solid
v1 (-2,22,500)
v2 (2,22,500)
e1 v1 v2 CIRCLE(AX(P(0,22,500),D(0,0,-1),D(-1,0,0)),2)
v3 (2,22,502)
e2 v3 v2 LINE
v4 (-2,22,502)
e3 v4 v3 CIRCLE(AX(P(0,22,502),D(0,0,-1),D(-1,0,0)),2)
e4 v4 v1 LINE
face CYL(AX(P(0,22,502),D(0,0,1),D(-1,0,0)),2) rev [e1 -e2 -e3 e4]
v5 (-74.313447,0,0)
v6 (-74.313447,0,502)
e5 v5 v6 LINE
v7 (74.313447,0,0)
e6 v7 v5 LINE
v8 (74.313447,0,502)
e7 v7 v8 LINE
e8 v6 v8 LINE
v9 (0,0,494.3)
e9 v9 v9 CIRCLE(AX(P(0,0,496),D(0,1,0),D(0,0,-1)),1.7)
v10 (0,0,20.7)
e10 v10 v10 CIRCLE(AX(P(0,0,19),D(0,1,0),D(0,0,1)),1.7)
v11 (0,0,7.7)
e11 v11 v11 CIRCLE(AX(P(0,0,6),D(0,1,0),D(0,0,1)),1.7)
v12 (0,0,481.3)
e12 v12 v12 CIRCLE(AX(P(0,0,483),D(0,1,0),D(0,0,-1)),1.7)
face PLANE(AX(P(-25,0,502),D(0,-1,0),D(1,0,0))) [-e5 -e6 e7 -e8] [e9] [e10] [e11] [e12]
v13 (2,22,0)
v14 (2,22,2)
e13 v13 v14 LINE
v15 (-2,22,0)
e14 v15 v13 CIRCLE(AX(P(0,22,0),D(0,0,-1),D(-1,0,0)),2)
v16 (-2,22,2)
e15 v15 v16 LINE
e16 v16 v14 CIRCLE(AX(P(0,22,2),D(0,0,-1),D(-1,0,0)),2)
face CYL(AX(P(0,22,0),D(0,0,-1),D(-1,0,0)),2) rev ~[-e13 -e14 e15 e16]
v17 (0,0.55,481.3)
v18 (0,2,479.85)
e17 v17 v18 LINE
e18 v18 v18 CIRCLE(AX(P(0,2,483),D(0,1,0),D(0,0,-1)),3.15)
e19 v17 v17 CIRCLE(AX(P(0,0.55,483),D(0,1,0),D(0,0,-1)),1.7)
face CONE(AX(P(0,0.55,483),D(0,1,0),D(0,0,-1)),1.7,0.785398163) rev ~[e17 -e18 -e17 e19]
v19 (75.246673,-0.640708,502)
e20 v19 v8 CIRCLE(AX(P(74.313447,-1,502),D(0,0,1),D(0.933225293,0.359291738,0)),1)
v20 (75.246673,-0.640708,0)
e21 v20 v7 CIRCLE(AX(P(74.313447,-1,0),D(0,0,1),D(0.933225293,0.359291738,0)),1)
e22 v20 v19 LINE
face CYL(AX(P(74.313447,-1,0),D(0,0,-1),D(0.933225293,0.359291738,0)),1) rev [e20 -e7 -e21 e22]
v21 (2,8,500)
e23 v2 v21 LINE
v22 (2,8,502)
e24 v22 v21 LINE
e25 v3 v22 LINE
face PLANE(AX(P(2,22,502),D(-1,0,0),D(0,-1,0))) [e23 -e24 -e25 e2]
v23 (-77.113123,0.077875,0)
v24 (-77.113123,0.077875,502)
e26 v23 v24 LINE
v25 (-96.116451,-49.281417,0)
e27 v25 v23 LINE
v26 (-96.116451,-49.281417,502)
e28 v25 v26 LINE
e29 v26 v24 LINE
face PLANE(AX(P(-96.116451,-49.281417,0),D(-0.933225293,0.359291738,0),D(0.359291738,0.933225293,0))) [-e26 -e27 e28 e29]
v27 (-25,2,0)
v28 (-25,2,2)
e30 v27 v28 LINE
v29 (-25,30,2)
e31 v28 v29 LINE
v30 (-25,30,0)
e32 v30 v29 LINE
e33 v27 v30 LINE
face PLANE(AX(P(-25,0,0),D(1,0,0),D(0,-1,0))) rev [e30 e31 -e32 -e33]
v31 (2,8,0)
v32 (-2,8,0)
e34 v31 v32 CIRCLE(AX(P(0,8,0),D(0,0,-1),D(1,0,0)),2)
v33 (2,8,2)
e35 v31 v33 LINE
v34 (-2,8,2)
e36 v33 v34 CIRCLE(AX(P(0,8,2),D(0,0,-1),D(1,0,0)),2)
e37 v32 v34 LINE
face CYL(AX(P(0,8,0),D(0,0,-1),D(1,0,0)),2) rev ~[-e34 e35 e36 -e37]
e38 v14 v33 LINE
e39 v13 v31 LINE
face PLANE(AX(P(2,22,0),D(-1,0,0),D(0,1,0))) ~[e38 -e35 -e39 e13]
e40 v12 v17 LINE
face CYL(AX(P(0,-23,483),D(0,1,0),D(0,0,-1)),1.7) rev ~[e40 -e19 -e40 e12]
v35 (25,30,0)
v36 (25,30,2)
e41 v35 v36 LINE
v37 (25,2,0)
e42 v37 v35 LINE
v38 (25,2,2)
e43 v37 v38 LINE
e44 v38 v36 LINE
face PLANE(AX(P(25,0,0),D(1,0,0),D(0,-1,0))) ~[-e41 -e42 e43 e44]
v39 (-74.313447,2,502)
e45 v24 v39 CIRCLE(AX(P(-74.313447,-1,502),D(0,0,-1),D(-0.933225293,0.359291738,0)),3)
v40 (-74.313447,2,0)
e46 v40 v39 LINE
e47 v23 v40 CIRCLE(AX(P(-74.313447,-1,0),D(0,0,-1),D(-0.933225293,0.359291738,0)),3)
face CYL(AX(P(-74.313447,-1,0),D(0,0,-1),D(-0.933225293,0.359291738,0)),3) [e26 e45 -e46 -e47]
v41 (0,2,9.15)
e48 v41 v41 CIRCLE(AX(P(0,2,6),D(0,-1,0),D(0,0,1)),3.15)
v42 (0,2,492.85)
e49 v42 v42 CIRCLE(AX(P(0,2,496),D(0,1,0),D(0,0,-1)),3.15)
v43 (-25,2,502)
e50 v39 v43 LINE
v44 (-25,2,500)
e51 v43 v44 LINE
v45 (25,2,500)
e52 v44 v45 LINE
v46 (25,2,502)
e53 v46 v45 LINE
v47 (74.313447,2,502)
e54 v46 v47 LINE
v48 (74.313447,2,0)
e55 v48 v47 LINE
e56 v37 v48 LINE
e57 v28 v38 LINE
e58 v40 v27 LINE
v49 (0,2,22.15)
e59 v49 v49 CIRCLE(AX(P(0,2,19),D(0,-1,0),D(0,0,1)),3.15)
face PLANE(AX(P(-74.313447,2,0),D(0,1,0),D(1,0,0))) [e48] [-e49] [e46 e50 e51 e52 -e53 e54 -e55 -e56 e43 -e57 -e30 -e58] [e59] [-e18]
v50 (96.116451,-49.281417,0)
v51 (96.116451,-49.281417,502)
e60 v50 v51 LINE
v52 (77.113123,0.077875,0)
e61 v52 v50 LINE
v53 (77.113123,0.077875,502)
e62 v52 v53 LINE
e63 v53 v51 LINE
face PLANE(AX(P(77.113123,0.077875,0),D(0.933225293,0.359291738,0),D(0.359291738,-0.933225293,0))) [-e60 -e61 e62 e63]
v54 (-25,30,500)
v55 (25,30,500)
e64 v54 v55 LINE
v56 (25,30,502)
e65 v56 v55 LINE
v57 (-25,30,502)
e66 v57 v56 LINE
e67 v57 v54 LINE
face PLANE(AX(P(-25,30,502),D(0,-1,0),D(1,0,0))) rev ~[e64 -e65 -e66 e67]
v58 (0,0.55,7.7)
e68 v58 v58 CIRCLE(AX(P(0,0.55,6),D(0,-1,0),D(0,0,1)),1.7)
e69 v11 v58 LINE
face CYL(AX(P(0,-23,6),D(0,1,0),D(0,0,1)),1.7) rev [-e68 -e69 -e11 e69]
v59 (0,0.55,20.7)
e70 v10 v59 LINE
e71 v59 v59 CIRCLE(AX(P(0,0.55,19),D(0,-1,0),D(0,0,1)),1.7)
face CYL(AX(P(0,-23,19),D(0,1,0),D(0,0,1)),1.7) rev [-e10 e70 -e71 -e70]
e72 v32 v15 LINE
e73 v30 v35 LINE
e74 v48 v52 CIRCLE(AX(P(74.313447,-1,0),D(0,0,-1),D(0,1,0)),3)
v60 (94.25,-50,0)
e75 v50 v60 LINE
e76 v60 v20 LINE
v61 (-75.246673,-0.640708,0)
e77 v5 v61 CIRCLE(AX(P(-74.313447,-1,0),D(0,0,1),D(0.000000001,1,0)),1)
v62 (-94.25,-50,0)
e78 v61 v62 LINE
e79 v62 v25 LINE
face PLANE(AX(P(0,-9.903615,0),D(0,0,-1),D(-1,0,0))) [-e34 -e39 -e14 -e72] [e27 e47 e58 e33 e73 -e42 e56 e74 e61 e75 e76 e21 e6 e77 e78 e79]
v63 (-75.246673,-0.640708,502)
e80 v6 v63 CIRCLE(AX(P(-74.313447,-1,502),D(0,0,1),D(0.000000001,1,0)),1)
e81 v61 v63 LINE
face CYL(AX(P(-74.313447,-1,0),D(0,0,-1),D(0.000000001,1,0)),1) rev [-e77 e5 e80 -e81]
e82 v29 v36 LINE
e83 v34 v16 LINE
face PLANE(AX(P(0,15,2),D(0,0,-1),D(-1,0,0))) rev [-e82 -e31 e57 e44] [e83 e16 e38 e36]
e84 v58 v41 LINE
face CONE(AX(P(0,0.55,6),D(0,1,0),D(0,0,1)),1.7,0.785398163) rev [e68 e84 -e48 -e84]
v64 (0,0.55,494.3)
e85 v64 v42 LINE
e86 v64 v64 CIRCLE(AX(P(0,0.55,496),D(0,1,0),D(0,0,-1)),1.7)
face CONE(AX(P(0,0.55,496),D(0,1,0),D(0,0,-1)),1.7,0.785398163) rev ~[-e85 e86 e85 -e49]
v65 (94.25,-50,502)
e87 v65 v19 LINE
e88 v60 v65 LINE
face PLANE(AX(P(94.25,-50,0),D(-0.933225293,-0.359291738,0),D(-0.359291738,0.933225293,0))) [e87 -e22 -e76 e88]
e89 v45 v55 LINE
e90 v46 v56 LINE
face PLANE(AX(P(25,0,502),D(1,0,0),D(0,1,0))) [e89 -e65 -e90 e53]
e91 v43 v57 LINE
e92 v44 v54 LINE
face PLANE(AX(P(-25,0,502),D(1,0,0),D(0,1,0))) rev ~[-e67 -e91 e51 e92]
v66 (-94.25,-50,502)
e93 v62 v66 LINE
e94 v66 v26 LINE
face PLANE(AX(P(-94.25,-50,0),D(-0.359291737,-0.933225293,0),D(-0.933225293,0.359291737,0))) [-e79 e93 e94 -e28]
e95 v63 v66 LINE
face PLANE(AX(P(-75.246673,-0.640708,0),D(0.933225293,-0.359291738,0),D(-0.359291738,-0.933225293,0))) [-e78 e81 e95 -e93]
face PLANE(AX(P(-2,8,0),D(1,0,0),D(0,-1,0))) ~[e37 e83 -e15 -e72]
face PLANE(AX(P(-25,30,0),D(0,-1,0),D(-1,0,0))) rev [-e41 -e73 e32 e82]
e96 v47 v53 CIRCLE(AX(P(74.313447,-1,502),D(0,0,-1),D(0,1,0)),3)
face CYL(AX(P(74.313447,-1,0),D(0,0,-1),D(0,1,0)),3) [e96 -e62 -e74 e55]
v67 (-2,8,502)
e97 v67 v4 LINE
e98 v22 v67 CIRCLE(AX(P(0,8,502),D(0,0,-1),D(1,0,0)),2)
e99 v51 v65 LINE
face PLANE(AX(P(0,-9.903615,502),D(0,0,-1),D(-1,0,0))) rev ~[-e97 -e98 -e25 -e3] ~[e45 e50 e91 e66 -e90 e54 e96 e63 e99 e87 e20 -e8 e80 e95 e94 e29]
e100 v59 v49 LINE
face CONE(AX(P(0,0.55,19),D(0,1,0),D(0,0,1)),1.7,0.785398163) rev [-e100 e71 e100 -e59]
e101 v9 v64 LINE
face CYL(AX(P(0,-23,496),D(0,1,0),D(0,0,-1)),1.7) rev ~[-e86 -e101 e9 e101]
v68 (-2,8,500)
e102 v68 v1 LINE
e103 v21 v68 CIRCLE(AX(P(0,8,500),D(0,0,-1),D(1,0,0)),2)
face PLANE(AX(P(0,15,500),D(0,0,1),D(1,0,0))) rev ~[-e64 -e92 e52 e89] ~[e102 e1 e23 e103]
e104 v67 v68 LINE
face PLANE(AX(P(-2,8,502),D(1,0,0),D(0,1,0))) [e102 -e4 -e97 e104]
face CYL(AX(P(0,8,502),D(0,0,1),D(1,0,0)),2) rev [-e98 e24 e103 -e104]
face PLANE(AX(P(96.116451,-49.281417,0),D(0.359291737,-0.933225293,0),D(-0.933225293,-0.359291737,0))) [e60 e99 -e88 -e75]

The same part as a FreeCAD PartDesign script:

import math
import FreeCAD as App
import Part
import Sketcher
from FreeCAD import Vector
Q = App.Units.Quantity

doc = App.newDocument("Part")
body = doc.addObject("PartDesign::Body", "Body")

# Sketch on XY plane
sketch1 = body.newObject("Sketcher::SketchObject", "Sketch")
sketch1.AttachmentSupport = (doc.getObject("XY_Plane"), [""])
sketch1.MapMode = "FlatFace"
sketch1.addGeometry(Part.LineSegment(Vector(75.2, -0.6, 0), Vector(94.2, -50, 0)), False)
sketch1.addGeometry(Part.LineSegment(Vector(94.2, -50, 0), Vector(96.1, -49.3, 0)), False)
sketch1.addGeometry(Part.LineSegment(Vector(96.1, -49.3, 0), Vector(77.1, 0.1, 0)), False)
sketch1.addGeometry(Part.ArcOfCircle(Part.Circle(Vector(74.3, -1, 0), Vector(0, 0, 1), 3), math.radians(21), math.radians(90)), False)
sketch1.addGeometry(Part.LineSegment(Vector(74.3, 2, 0), Vector(-74.3, 2, 0)), False)
sketch1.addGeometry(Part.ArcOfCircle(Part.Circle(Vector(-74.3, -1, 0), Vector(0, 0, 1), 3), math.radians(90), math.radians(159)), False)
sketch1.addGeometry(Part.LineSegment(Vector(-77.1, 0.1, 0), Vector(-96.1, -49.3, 0)), False)
sketch1.addGeometry(Part.LineSegment(Vector(-96.1, -49.3, 0), Vector(-94.2, -50, 0)), False)
sketch1.addGeometry(Part.LineSegment(Vector(-94.2, -50, 0), Vector(-75.2, -0.6, 0)), False)
sketch1.addGeometry(Part.ArcOfCircle(Part.Circle(Vector(-74.3, -1, 0), Vector(0, 0, 1), 1), math.radians(90), math.radians(159)), False)
sketch1.addGeometry(Part.LineSegment(Vector(-74.3, 0, 0), Vector(74.3, 0, 0)), False)
sketch1.addGeometry(Part.ArcOfCircle(Part.Circle(Vector(74.3, -1, 0), Vector(0, 0, 1), 1), math.radians(21), math.radians(90)), False)
sketch1.addConstraint(Sketcher.Constraint("Coincident", 0, 2, 1, 1))
sketch1.addConstraint(Sketcher.Constraint("Coincident", 1, 2, 2, 1))
sketch1.addConstraint(Sketcher.Constraint("Tangent", 2, 2, 3, 1))
sketch1.addConstraint(Sketcher.Constraint("Tangent", 3, 2, 4, 1))
sketch1.addConstraint(Sketcher.Constraint("Tangent", 4, 2, 5, 1))
sketch1.addConstraint(Sketcher.Constraint("Tangent", 5, 2, 6, 1))
sketch1.addConstraint(Sketcher.Constraint("Coincident", 6, 2, 7, 1))
sketch1.addConstraint(Sketcher.Constraint("Coincident", 7, 2, 8, 1))
sketch1.addConstraint(Sketcher.Constraint("Tangent", 8, 2, 9, 2))
sketch1.addConstraint(Sketcher.Constraint("Tangent", 9, 1, 10, 1))
sketch1.addConstraint(Sketcher.Constraint("Tangent", 10, 2, 11, 2))
sketch1.addConstraint(Sketcher.Constraint("Tangent", 11, 1, 0, 1))
sketch1.addConstraint(Sketcher.Constraint("Horizontal", 4))
sketch1.addConstraint(Sketcher.Constraint("Horizontal", 10))
sketch1.addConstraint(Sketcher.Constraint("Coincident", 9, 3, 5, 3))
sketch1.addConstraint(Sketcher.Constraint("Coincident", 11, 3, 3, 3))
sketch1.addConstraint(Sketcher.Constraint("Equal", 3, 5))
sketch1.addConstraint(Sketcher.Constraint("Symmetric", 9, 1, 10, 2, -1, 1))
sketch1.addConstraint(Sketcher.Constraint("Symmetric", 1, 2, 6, 2, -2))
sketch1.addConstraint(Sketcher.Constraint("Symmetric", 0, 2, 7, 2, -2))
sketch1.addConstraint(Sketcher.Constraint("Perpendicular", 0, 1))
sketch1.addConstraint(Sketcher.Constraint("Perpendicular", 1, 2))
sketch1.addConstraint(Sketcher.Constraint("Radius", 3, Q("3 mm")))
sketch1.addConstraint(Sketcher.Constraint("Radius", 9, Q("1 mm")))
sketch1.addConstraint(Sketcher.Constraint("DistanceY", 0, 2, -1, 1, Q("50 mm")))
sketch1.addConstraint(Sketcher.Constraint("DistanceX", -1, 1, 0, 2, Q("94.25 mm")))
sketch1.addConstraint(Sketcher.Constraint("DistanceX", 4, 2, 4, 1, Q("148.626895 mm")))
pad1 = body.newObject("PartDesign::Pad", "Pad")
pad1.Profile = sketch1
pad1.Length = 502

# Sketch on XY plane
sketch2 = body.newObject("Sketcher::SketchObject", "Sketch001")
sketch2.AttachmentSupport = (doc.getObject("XY_Plane"), [""])
sketch2.MapMode = "FlatFace"
sketch2.AttachmentOffset = App.Placement(Vector(0, 0, 502), App.Rotation())
sketch2.addGeometry(Part.LineSegment(Vector(-25, 30, 0), Vector(-25, 0, 0)), False)
sketch2.addGeometry(Part.LineSegment(Vector(-25, 0, 0), Vector(25, 0, 0)), False)
sketch2.addGeometry(Part.LineSegment(Vector(25, 0, 0), Vector(25, 30, 0)), False)
sketch2.addGeometry(Part.LineSegment(Vector(25, 30, 0), Vector(-25, 30, 0)), False)
sketch2.addGeometry(Part.ArcOfCircle(Part.Circle(Vector(0, 22, 0), Vector(0, 0, 1), 2), math.radians(0), math.radians(180)), False)
sketch2.addGeometry(Part.LineSegment(Vector(2, 22, 0), Vector(2, 8, 0)), False)
sketch2.addGeometry(Part.ArcOfCircle(Part.Circle(Vector(0, 8, 0), Vector(0, 0, 1), 2), math.radians(180), math.radians(360)), False)
sketch2.addGeometry(Part.LineSegment(Vector(-2, 8, 0), Vector(-2, 22, 0)), False)
sketch2.addConstraint(Sketcher.Constraint("Coincident", 0, 2, 1, 1))
sketch2.addConstraint(Sketcher.Constraint("Coincident", 1, 2, 2, 1))
sketch2.addConstraint(Sketcher.Constraint("Coincident", 2, 2, 3, 1))
sketch2.addConstraint(Sketcher.Constraint("Coincident", 3, 2, 0, 1))
sketch2.addConstraint(Sketcher.Constraint("Tangent", 4, 1, 5, 1))
sketch2.addConstraint(Sketcher.Constraint("Tangent", 5, 2, 6, 2))
sketch2.addConstraint(Sketcher.Constraint("Tangent", 6, 1, 7, 1))
sketch2.addConstraint(Sketcher.Constraint("Tangent", 7, 2, 4, 2))
sketch2.addConstraint(Sketcher.Constraint("Vertical", 0))
sketch2.addConstraint(Sketcher.Constraint("Horizontal", 1))
sketch2.addConstraint(Sketcher.Constraint("Vertical", 2))
sketch2.addConstraint(Sketcher.Constraint("Horizontal", 3))
sketch2.addConstraint(Sketcher.Constraint("Vertical", 5))
sketch2.addConstraint(Sketcher.Constraint("Vertical", 7))
sketch2.addConstraint(Sketcher.Constraint("Symmetric", 0, 2, 1, 2, -1, 1))
sketch2.addConstraint(Sketcher.Constraint("PointOnObject", 4, 3, -2))
sketch2.addConstraint(Sketcher.Constraint("Radius", 4, Q("2 mm")))
sketch2.addConstraint(Sketcher.Constraint("DistanceX", 1, 1, 1, 2, Q("50 mm")))
sketch2.addConstraint(Sketcher.Constraint("DistanceY", 0, 2, 0, 1, Q("30 mm")))
sketch2.addConstraint(Sketcher.Constraint("DistanceY", 5, 2, 5, 1, Q("14 mm")))
sketch2.addConstraint(Sketcher.Constraint("DistanceY", -1, 1, 4, 3, Q("22 mm")))
pad2 = body.newObject("PartDesign::Pad", "Pad001")
pad2.Profile = sketch2
pad2.Length = 2
pad2.Reversed = True
body2 = doc.addObject("PartDesign::Body", "Body001")
doc.recompute()

body2.BaseFeature = body
doc.recompute()

mirroring = doc.addObject("Part::Mirroring", "Mirroring")
mirroring.Source = body
mirroring.Base = Vector(0, 0, 251)
mirroring.Normal = Vector(0, 0, 1)
body3 = doc.addObject("PartDesign::Body", "Body002")
body3.BaseFeature = mirroring
boolean = body2.newObject("PartDesign::Boolean", "Boolean")
boolean.Type = "Fuse"
boolean.addObjects([body3])
doc.recompute()

# Sketch on YZ plane
sketch3 = body2.newObject("Sketcher::SketchObject", "Sketch002")
sketch3.AttachmentSupport = (doc.getObject("YZ_Plane001"), [""])
sketch3.MapMode = "FlatFace"
sketch3.addGeometry(Part.LineSegment(Vector(-24, 19, 0), Vector(2, 19, 0)), False)
sketch3.addGeometry(Part.LineSegment(Vector(2, 19, 0), Vector(2, 22.1, 0)), False)
sketch3.addGeometry(Part.LineSegment(Vector(2, 22.1, 0), Vector(0.6, 20.7, 0)), False)
sketch3.addGeometry(Part.LineSegment(Vector(0.6, 20.7, 0), Vector(-23, 20.7, 0)), False)
sketch3.addGeometry(Part.LineSegment(Vector(-23, 20.7, 0), Vector(-24, 19, 0)), False)
sketch3.addGeometry(Part.LineSegment(Vector(2, 19, 0), Vector(-24, 19, 0)), True)  # axis
sketch3.addConstraint(Sketcher.Constraint("Coincident", 0, 2, 1, 1))
sketch3.addConstraint(Sketcher.Constraint("Coincident", 1, 2, 2, 1))
sketch3.addConstraint(Sketcher.Constraint("Coincident", 2, 2, 3, 1))
sketch3.addConstraint(Sketcher.Constraint("Coincident", 3, 2, 4, 1))
sketch3.addConstraint(Sketcher.Constraint("Coincident", 4, 2, 0, 1))
sketch3.addConstraint(Sketcher.Constraint("Horizontal", 0))
sketch3.addConstraint(Sketcher.Constraint("Vertical", 1))
sketch3.addConstraint(Sketcher.Constraint("Horizontal", 3))
sketch3.addConstraint(Sketcher.Constraint("Horizontal", 5))
sketch3.addConstraint(Sketcher.Constraint("Coincident", 5, 1, 0, 2))
sketch3.addConstraint(Sketcher.Constraint("Equal", 0, 5))
sketch3.addConstraint(Sketcher.Constraint("Angle", 2, Q("-135 deg")))
sketch3.addConstraint(Sketcher.Constraint("Angle", 4, Q("-121 deg")))
sketch3.addConstraint(Sketcher.Constraint("DistanceX", -1, 1, 0, 2, Q("2 mm")))
sketch3.addConstraint(Sketcher.Constraint("DistanceY", -1, 1, 0, 2, Q("19 mm")))
sketch3.addConstraint(Sketcher.Constraint("DistanceX", 3, 2, -1, 1, Q("23 mm")))
sketch3.addConstraint(Sketcher.Constraint("DistanceX", 3, 2, 3, 1, Q("23.55 mm")))
sketch3.addConstraint(Sketcher.Constraint("DistanceY", 1, 1, 1, 2, Q("3.15 mm")))
groove = body2.newObject("PartDesign::Groove", "Groove")
groove.Profile = sketch3
groove.ReferenceAxis = (sketch3, ["Axis0"])
groove.Angle = 360
doc.recompute()

linearpattern = body2.newObject("PartDesign::LinearPattern", "LinearPattern")
linearpattern.Originals = [groove]
linearpattern.Direction = (doc.getObject("Z_Axis001"), [""])
linearpattern.Mode = "offset"
linearpattern.Offset = 13
linearpattern.Occurrences = 2
linearpattern.Reversed = True
body2.Tip = linearpattern
doc.recompute()

datumplane = body2.newObject("PartDesign::Plane", "DatumPlane")
datumplane.AttachmentSupport = (doc.getObject("XY_Plane001"), [""])
datumplane.MapMode = "FlatFace"
datumplane.AttachmentOffset = App.Placement(Vector(0, 0, 251), App.Rotation())
mirrored = body2.newObject("PartDesign::Mirrored", "Mirrored")
mirrored.Originals = [groove]
mirrored.MirrorPlane = (datumplane, [""])
body2.Tip = mirrored

# Sketch on YZ plane
sketch4 = body2.newObject("Sketcher::SketchObject", "Sketch003")
sketch4.AttachmentSupport = (doc.getObject("YZ_Plane001"), [""])
sketch4.MapMode = "FlatFace"
sketch4.addGeometry(Part.LineSegment(Vector(2, 496, 0), Vector(-24, 496, 0)), False)
sketch4.addGeometry(Part.LineSegment(Vector(-24, 496, 0), Vector(-23, 494.3, 0)), False)
sketch4.addGeometry(Part.LineSegment(Vector(-23, 494.3, 0), Vector(0.6, 494.3, 0)), False)
sketch4.addGeometry(Part.LineSegment(Vector(0.6, 494.3, 0), Vector(2, 492.9, 0)), False)
sketch4.addGeometry(Part.LineSegment(Vector(2, 492.9, 0), Vector(2, 496, 0)), False)
sketch4.addGeometry(Part.LineSegment(Vector(-24, 496, 0), Vector(2, 496, 0)), True)  # axis
sketch4.addConstraint(Sketcher.Constraint("Coincident", 0, 2, 1, 1))
sketch4.addConstraint(Sketcher.Constraint("Coincident", 1, 2, 2, 1))
sketch4.addConstraint(Sketcher.Constraint("Coincident", 2, 2, 3, 1))
sketch4.addConstraint(Sketcher.Constraint("Coincident", 3, 2, 4, 1))
sketch4.addConstraint(Sketcher.Constraint("Coincident", 4, 2, 0, 1))
sketch4.addConstraint(Sketcher.Constraint("Horizontal", 0))
sketch4.addConstraint(Sketcher.Constraint("Horizontal", 2))
sketch4.addConstraint(Sketcher.Constraint("Vertical", 4))
sketch4.addConstraint(Sketcher.Constraint("Horizontal", 5))
sketch4.addConstraint(Sketcher.Constraint("Coincident", 5, 1, 0, 2))
sketch4.addConstraint(Sketcher.Constraint("Vertical", 3, 2, 5, 2))
sketch4.addConstraint(Sketcher.Constraint("Angle", 1, Q("-59 deg")))
sketch4.addConstraint(Sketcher.Constraint("Angle", 3, Q("-45 deg")))
sketch4.addConstraint(Sketcher.Constraint("DistanceY", -1, 1, 0, 2, Q("496 mm")))
sketch4.addConstraint(Sketcher.Constraint("DistanceX", 1, 2, -1, 1, Q("23 mm")))
sketch4.addConstraint(Sketcher.Constraint("DistanceX", -1, 1, 3, 2, Q("2 mm")))
sketch4.addConstraint(Sketcher.Constraint("DistanceX", 2, 1, 2, 2, Q("23.55 mm")))
sketch4.addConstraint(Sketcher.Constraint("DistanceY", 4, 1, 4, 2, Q("3.15 mm")))
groove2 = body2.newObject("PartDesign::Groove", "Groove001")
groove2.Profile = sketch4
groove2.ReferenceAxis = (sketch4, ["Axis0"])
groove2.Angle = 360
mirroring.Visibility = False

doc.recompute()
